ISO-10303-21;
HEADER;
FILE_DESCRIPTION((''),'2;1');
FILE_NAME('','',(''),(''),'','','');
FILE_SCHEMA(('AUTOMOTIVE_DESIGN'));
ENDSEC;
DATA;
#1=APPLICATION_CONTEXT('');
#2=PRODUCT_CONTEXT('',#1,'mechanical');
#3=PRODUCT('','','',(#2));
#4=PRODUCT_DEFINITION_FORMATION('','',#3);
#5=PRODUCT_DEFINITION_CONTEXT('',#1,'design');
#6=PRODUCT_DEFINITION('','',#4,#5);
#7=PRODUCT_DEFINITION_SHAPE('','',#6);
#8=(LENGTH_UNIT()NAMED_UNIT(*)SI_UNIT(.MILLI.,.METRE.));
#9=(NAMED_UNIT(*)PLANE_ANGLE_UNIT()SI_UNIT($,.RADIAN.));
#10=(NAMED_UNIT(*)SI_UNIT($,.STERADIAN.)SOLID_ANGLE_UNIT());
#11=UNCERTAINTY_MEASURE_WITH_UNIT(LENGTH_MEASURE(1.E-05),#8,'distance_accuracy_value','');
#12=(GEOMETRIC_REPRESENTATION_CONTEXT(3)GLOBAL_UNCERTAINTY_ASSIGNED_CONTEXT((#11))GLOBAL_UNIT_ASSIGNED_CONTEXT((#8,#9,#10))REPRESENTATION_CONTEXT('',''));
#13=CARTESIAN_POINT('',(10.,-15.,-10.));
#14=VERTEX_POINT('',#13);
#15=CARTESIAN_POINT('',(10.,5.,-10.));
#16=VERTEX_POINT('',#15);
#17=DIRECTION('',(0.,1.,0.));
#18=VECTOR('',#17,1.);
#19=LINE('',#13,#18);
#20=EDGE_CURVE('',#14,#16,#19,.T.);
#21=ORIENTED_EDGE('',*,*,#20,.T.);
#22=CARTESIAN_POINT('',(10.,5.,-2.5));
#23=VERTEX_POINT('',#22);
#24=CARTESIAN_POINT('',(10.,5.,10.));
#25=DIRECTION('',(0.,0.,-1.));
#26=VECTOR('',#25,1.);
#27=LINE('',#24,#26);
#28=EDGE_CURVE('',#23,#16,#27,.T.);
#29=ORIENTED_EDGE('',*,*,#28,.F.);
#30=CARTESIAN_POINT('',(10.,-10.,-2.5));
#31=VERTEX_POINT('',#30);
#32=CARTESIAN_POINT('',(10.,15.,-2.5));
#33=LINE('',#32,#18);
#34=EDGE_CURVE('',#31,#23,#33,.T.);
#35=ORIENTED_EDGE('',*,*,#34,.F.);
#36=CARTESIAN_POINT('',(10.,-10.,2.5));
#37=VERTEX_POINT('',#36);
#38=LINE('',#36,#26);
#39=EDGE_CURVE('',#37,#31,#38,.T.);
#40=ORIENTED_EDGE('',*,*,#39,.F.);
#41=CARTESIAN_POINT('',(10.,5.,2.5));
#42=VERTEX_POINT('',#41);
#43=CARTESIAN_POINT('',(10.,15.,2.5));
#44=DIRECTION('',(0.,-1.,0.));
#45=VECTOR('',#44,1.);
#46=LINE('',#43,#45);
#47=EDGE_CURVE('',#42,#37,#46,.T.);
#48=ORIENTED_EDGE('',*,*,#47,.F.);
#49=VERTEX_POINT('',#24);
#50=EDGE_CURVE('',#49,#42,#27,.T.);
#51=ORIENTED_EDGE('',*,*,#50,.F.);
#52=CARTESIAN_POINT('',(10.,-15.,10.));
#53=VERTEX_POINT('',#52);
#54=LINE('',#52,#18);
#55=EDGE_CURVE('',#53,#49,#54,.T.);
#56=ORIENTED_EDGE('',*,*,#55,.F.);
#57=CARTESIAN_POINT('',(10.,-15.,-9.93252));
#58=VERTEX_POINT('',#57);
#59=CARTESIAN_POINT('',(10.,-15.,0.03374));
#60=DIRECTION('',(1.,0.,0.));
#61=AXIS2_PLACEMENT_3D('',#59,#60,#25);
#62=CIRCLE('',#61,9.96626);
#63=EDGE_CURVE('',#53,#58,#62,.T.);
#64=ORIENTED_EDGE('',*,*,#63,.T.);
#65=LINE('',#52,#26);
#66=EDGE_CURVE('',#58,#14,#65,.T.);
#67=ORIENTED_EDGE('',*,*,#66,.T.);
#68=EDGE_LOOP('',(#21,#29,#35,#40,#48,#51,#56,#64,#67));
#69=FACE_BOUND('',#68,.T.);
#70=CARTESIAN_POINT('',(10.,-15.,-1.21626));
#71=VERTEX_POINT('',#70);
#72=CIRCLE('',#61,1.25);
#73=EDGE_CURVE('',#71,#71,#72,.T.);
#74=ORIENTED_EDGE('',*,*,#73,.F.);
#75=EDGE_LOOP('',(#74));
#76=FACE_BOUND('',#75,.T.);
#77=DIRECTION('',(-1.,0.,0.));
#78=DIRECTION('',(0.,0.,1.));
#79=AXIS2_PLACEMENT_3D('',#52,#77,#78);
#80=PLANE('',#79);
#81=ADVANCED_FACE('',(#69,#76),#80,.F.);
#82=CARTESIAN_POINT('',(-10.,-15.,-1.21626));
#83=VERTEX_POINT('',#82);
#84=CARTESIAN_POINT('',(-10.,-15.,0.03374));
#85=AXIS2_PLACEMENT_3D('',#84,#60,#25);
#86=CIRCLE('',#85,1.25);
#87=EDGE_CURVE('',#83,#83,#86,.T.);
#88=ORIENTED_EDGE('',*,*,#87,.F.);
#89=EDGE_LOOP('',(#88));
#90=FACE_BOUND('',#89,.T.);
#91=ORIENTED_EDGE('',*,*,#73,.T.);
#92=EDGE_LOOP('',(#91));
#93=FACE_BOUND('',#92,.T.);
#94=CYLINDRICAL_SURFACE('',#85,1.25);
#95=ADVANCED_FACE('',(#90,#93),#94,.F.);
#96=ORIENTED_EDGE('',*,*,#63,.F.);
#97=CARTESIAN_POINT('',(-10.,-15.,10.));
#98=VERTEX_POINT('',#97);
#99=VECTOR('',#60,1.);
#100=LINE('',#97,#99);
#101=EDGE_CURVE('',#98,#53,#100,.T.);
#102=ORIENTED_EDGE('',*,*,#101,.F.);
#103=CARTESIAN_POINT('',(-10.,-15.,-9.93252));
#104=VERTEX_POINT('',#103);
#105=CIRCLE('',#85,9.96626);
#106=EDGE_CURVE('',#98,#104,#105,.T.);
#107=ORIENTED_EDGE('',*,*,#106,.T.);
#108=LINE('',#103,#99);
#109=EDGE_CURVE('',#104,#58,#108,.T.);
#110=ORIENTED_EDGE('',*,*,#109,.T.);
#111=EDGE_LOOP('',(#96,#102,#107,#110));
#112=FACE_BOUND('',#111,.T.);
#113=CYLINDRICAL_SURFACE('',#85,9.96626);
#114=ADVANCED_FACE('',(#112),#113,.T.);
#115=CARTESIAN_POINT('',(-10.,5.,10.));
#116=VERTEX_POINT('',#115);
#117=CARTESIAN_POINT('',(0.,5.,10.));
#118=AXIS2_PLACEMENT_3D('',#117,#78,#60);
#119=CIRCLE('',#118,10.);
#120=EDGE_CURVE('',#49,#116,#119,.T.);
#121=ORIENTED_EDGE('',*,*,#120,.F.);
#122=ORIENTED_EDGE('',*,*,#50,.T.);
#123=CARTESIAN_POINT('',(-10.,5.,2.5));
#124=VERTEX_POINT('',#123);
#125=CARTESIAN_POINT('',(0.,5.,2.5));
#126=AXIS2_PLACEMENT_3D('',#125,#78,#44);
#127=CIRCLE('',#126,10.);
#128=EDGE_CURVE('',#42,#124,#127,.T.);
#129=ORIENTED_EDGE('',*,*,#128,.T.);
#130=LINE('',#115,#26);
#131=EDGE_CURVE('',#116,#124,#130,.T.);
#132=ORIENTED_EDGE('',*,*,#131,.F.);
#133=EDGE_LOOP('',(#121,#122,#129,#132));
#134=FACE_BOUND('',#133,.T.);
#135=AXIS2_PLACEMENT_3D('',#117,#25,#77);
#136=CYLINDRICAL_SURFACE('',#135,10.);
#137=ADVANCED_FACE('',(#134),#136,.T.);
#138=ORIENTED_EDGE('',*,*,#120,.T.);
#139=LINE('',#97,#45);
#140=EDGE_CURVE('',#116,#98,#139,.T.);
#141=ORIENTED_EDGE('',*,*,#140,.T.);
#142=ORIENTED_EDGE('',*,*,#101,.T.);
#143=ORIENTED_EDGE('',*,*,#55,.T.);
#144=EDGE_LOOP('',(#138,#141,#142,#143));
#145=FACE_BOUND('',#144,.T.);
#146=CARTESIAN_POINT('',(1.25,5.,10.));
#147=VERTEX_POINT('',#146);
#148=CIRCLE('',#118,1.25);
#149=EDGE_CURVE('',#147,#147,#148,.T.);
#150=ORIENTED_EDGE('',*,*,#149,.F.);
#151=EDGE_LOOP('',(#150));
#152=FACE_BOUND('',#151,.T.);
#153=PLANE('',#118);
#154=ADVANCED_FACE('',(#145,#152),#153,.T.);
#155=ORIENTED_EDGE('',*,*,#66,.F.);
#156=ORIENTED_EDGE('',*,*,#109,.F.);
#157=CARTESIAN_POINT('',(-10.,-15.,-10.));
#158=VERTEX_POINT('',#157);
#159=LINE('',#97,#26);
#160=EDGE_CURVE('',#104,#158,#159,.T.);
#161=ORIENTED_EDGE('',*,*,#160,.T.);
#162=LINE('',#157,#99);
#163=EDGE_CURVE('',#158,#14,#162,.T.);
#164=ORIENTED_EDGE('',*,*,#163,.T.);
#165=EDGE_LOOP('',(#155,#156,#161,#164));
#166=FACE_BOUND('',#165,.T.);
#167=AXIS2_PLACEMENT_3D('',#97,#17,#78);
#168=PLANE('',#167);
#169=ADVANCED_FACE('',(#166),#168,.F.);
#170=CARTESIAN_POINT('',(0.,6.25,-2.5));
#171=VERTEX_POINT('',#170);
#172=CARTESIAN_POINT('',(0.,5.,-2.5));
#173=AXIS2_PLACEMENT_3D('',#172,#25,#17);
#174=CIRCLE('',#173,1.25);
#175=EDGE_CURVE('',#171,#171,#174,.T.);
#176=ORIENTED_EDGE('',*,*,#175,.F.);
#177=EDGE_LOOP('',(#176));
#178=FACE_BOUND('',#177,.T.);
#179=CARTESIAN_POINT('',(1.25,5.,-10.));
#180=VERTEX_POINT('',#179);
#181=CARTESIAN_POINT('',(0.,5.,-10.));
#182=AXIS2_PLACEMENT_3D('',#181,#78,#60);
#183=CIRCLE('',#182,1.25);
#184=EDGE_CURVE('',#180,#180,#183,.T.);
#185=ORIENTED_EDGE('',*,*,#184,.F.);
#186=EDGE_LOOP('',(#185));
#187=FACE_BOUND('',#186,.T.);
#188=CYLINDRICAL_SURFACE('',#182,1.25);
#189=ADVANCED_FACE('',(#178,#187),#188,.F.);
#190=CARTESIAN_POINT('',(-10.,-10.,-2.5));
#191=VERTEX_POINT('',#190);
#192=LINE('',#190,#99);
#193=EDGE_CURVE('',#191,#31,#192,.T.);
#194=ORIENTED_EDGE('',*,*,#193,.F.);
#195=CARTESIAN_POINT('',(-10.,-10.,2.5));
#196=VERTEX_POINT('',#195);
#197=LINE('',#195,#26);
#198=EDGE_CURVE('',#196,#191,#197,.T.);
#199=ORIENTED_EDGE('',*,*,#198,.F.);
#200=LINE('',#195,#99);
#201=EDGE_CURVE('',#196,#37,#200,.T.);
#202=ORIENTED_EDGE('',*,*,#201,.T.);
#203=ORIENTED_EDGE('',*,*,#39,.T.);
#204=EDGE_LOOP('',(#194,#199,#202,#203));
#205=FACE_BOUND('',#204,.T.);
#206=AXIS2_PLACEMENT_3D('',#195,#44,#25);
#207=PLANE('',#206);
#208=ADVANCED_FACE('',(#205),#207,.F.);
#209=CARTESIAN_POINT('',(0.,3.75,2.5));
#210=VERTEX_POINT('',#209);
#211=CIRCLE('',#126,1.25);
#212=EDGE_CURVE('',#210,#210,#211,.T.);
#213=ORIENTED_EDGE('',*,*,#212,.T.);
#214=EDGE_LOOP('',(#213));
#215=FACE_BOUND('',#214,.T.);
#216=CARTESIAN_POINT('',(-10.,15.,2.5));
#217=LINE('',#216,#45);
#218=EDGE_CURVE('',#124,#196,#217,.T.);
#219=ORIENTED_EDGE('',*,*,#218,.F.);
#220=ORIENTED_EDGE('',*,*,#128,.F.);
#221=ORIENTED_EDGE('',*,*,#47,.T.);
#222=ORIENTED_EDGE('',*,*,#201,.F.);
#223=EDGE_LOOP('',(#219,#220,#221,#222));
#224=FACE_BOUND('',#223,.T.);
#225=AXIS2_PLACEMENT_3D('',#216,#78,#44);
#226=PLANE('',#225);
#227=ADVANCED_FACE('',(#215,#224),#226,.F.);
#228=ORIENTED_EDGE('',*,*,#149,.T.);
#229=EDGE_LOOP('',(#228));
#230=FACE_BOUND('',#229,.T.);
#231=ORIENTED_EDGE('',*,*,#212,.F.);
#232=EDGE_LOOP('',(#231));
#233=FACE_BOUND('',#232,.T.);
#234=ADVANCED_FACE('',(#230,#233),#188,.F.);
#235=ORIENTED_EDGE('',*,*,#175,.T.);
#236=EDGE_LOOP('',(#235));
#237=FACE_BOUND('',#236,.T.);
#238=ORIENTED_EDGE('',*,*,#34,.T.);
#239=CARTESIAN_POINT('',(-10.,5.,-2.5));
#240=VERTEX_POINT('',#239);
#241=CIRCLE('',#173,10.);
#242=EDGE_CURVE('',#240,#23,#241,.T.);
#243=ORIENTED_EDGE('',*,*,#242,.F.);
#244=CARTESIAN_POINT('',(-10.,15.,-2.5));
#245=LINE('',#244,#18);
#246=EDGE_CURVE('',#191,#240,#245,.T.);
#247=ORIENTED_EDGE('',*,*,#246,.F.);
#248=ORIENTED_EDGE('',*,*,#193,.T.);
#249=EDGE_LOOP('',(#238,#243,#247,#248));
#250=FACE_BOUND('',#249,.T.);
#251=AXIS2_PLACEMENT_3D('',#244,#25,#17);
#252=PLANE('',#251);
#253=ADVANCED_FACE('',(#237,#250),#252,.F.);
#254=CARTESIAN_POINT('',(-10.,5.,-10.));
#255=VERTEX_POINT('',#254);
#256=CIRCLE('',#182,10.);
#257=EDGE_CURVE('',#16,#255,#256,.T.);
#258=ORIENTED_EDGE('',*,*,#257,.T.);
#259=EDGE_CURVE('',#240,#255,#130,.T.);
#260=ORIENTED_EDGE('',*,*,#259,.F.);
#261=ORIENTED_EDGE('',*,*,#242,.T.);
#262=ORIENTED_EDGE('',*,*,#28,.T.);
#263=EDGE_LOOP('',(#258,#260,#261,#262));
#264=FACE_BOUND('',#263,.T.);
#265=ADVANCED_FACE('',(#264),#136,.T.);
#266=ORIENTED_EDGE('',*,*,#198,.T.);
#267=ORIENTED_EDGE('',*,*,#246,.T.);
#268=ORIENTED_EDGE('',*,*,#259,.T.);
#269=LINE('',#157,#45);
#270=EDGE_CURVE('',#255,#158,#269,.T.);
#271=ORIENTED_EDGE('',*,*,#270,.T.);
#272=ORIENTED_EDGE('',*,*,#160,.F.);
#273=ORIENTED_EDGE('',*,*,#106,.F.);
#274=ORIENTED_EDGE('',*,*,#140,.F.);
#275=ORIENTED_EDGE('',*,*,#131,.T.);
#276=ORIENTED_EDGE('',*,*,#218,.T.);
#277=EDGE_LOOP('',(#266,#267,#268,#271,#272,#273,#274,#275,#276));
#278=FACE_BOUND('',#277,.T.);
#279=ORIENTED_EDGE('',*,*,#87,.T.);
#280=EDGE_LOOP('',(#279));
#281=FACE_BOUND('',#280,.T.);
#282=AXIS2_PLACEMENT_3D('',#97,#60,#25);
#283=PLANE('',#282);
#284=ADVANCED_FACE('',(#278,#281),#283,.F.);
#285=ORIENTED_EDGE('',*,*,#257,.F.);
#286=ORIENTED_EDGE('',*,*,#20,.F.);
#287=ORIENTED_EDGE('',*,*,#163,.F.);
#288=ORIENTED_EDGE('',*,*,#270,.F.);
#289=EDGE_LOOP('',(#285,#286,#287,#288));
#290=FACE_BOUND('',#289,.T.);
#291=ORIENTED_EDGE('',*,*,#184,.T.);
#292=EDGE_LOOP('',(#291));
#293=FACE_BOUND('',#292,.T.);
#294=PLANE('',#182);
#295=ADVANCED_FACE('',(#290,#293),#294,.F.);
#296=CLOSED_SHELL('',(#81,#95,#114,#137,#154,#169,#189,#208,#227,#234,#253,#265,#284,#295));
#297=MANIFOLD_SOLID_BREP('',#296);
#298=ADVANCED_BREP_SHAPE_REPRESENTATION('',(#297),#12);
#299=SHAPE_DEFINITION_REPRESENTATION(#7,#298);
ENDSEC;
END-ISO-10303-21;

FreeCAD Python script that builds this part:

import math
import FreeCAD as App
import Part
import Sketcher

V = App.Vector

doc = App.newDocument("Part")
params = doc.addObject("Spreadsheet::Sheet", "Params")
for row, (alias, value) in enumerate([
    ("sketch1_radius", "10 mm"),
    ("pad1_length", "20 mm"),
    ("sketch2_width", "25 mm"),
    ("sketch2_height", "5 mm"),
    ("pocket1_length", "20 mm"),
    ("sketch3_diameter", "2.5 mm"),
    ("pad2_length", "20 mm"),
    ("sketch5_diameter", "2.5 mm"),
    ("pocket3_length", "20 mm"),
], start=1):
    params.set(f"A{row}", alias)
    params.set(f"B{row}", "=" + value)
    params.setAlias(f"B{row}", alias)

body = doc.addObject("PartDesign::Body", "Body")

sketch1 = body.newObject("Sketcher::SketchObject", "Sketch")
sketch1.AttachmentSupport = (doc.getObject("XY_Plane"), [""])
sketch1.MapMode = "FlatFace"
sketch1.addGeometry(Part.LineSegment(V(-10, -15, 0), V(10, -15, 0)), False)
sketch1.addGeometry(Part.LineSegment(V(10, -15, 0), V(10, 5, 0)), False)
sketch1.addGeometry(Part.ArcOfCircle(Part.Circle(V(0, 5, 0), V(0, 0, 1), 10), math.radians(0), math.radians(180)), False)
sketch1.addGeometry(Part.LineSegment(V(-10, 5, 0), V(-10, -15, 0)), False)
sketch1.addConstraint(Sketcher.Constraint("Coincident", 0, 2, 1, 1))
sketch1.addConstraint(Sketcher.Constraint("Tangent", 1, 2, 2, 1))
sketch1.addConstraint(Sketcher.Constraint("Tangent", 2, 2, 3, 1))
sketch1.addConstraint(Sketcher.Constraint("Coincident", 3, 2, 0, 1))
sketch1.addConstraint(Sketcher.Constraint("Horizontal", 0))
sketch1.addConstraint(Sketcher.Constraint("Vertical", 1))
sketch1.addConstraint(Sketcher.Constraint("Vertical", 3))
sketch1.addConstraint(Sketcher.Constraint("PointOnObject", 2, 3, -2))
sketch1.addConstraint(Sketcher.Constraint("Equal", 0, 1))
sketch1.addConstraint(Sketcher.Constraint("Radius", 2, 10.0))
sketch1.addConstraint(Sketcher.Constraint("DistanceY", -1, 1, 2, 3, 5.0))
sketch1.setExpression("Constraints[9]", "Params.sketch1_radius")
pad1 = body.newObject("PartDesign::Pad", "Pad")
pad1.Profile = sketch1
pad1.setExpression("Length", "Params.pad1_length")
pad1.Midplane = True

sketch2 = body.newObject("Sketcher::SketchObject", "Sketch001")
sketch2.AttachmentSupport = (doc.getObject("YZ_Plane"), [""])
sketch2.MapMode = "FlatFace"
sketch2.addGeometry(Part.LineSegment(V(15, 2.5, 0), V(-10, 2.5, 0)), False)
sketch2.addGeometry(Part.LineSegment(V(-10, 2.5, 0), V(-10, -2.5, 0)), False)
sketch2.addGeometry(Part.LineSegment(V(-10, -2.5, 0), V(15, -2.5, 0)), False)
sketch2.addGeometry(Part.LineSegment(V(15, -2.5, 0), V(15, 2.5, 0)), False)
sketch2.addConstraint(Sketcher.Constraint("Coincident", 0, 2, 1, 1))
sketch2.addConstraint(Sketcher.Constraint("Coincident", 1, 2, 2, 1))
sketch2.addConstraint(Sketcher.Constraint("Coincident", 2, 2, 3, 1))
sketch2.addConstraint(Sketcher.Constraint("Coincident", 3, 2, 0, 1))
sketch2.addConstraint(Sketcher.Constraint("Horizontal", 0))
sketch2.addConstraint(Sketcher.Constraint("Vertical", 1))
sketch2.addConstraint(Sketcher.Constraint("Horizontal", 2))
sketch2.addConstraint(Sketcher.Constraint("Vertical", 3))
sketch2.addConstraint(Sketcher.Constraint("DistanceX", 0, 2, 0, 1, 25.0))
sketch2.addConstraint(Sketcher.Constraint("DistanceY", 1, 2, 1, 1, 5.0))
sketch2.addConstraint(Sketcher.Constraint("DistanceX", 0, 2, -1, 1, 10.0))
sketch2.addConstraint(Sketcher.Constraint("DistanceY", -1, 1, 0, 2, 2.5))
sketch2.setExpression("Constraints[8]", "Params.sketch2_width")
sketch2.setExpression("Constraints[9]", "Params.sketch2_height")
pocket1 = body.newObject("PartDesign::Pocket", "Pocket")
pocket1.Profile = sketch2
pocket1.setExpression("Length", "Params.pocket1_length")
pocket1.Midplane = True

sketch3 = body.newObject("Sketcher::SketchObject", "Sketch002")
sketch3.AttachmentSupport = (doc.getObject("XY_Plane"), [""])
sketch3.MapMode = "FlatFace"
sketch3.AttachmentOffset = App.Placement(V(0, 0, 10), App.Rotation())
sketch3.addGeometry(Part.Circle(V(0, 5, 0), V(0, 0, 1), 1.25), False)
sketch3.addConstraint(Sketcher.Constraint("PointOnObject", 0, 3, -2))
sketch3.addConstraint(Sketcher.Constraint("Diameter", 0, 2.5))
sketch3.addConstraint(Sketcher.Constraint("DistanceY", -1, 1, 0, 3, 5.0))
sketch3.setExpression("Constraints[1]", "Params.sketch3_diameter")
pocket2 = body.newObject("PartDesign::Pocket", "Pocket001")
pocket2.Profile = sketch3
pocket2.Type = "ThroughAll"

sketch4 = body.newObject("Sketcher::SketchObject", "Sketch003")
sketch4.AttachmentSupport = (doc.getObject("YZ_Plane"), [""])
sketch4.MapMode = "FlatFace"
sketch4.AttachmentOffset = App.Placement(V(0, 0, 10), App.Rotation())
sketch4.addGeometry(Part.LineSegment(V(-15, -9.93252, 0), V(-15, 10, 0)), False)
sketch4.addGeometry(Part.ArcOfCircle(Part.Circle(V(-15, 0.03374, 0), V(0, 0, 1), 9.96626), math.radians(90), math.radians(270)), False)
sketch4.addConstraint(Sketcher.Constraint("Coincident", 0, 1, 1, 2))
sketch4.addConstraint(Sketcher.Constraint("Coincident", 1, 1, 0, 2))
sketch4.addConstraint(Sketcher.Constraint("Vertical", 0))
sketch4.addConstraint(Sketcher.Constraint("Vertical", 1, 3, 0, 1))
sketch4.addConstraint(Sketcher.Constraint("DistanceX", 1, 3, -1, 1, 15.0))
sketch4.addConstraint(Sketcher.Constraint("DistanceY", -1, 1, 1, 1, 10.0))
sketch4.addConstraint(Sketcher.Constraint("Radius", 1, 9.96626))
pad2 = body.newObject("PartDesign::Pad", "Pad001")
pad2.Profile = sketch4
pad2.setExpression("Length", "Params.pad2_length")
pad2.Reversed = True

sketch5 = body.newObject("Sketcher::SketchObject", "Sketch004")
sketch5.AttachmentSupport = (doc.getObject("YZ_Plane"), [""])
sketch5.MapMode = "FlatFace"
sketch5.AttachmentOffset = App.Placement(V(0, 0, 10), App.Rotation())
sketch5.addGeometry(Part.Circle(V(-15, 0.03374, 0), V(0, 0, 1), 1.25), False)
sketch5.addConstraint(Sketcher.Constraint("Diameter", 0, 2.5))
sketch5.addConstraint(Sketcher.Constraint("DistanceX", 0, 3, -1, 1, 15.0))
sketch5.addConstraint(Sketcher.Constraint("DistanceY", -1, 1, 0, 3, 0.03374))
sketch5.setExpression("Constraints[0]", "Params.sketch5_diameter")
pocket3 = body.newObject("PartDesign::Pocket", "Pocket002")
pocket3.Profile = sketch5
pocket3.setExpression("Length", "Params.pocket3_length")

doc.recompute()
